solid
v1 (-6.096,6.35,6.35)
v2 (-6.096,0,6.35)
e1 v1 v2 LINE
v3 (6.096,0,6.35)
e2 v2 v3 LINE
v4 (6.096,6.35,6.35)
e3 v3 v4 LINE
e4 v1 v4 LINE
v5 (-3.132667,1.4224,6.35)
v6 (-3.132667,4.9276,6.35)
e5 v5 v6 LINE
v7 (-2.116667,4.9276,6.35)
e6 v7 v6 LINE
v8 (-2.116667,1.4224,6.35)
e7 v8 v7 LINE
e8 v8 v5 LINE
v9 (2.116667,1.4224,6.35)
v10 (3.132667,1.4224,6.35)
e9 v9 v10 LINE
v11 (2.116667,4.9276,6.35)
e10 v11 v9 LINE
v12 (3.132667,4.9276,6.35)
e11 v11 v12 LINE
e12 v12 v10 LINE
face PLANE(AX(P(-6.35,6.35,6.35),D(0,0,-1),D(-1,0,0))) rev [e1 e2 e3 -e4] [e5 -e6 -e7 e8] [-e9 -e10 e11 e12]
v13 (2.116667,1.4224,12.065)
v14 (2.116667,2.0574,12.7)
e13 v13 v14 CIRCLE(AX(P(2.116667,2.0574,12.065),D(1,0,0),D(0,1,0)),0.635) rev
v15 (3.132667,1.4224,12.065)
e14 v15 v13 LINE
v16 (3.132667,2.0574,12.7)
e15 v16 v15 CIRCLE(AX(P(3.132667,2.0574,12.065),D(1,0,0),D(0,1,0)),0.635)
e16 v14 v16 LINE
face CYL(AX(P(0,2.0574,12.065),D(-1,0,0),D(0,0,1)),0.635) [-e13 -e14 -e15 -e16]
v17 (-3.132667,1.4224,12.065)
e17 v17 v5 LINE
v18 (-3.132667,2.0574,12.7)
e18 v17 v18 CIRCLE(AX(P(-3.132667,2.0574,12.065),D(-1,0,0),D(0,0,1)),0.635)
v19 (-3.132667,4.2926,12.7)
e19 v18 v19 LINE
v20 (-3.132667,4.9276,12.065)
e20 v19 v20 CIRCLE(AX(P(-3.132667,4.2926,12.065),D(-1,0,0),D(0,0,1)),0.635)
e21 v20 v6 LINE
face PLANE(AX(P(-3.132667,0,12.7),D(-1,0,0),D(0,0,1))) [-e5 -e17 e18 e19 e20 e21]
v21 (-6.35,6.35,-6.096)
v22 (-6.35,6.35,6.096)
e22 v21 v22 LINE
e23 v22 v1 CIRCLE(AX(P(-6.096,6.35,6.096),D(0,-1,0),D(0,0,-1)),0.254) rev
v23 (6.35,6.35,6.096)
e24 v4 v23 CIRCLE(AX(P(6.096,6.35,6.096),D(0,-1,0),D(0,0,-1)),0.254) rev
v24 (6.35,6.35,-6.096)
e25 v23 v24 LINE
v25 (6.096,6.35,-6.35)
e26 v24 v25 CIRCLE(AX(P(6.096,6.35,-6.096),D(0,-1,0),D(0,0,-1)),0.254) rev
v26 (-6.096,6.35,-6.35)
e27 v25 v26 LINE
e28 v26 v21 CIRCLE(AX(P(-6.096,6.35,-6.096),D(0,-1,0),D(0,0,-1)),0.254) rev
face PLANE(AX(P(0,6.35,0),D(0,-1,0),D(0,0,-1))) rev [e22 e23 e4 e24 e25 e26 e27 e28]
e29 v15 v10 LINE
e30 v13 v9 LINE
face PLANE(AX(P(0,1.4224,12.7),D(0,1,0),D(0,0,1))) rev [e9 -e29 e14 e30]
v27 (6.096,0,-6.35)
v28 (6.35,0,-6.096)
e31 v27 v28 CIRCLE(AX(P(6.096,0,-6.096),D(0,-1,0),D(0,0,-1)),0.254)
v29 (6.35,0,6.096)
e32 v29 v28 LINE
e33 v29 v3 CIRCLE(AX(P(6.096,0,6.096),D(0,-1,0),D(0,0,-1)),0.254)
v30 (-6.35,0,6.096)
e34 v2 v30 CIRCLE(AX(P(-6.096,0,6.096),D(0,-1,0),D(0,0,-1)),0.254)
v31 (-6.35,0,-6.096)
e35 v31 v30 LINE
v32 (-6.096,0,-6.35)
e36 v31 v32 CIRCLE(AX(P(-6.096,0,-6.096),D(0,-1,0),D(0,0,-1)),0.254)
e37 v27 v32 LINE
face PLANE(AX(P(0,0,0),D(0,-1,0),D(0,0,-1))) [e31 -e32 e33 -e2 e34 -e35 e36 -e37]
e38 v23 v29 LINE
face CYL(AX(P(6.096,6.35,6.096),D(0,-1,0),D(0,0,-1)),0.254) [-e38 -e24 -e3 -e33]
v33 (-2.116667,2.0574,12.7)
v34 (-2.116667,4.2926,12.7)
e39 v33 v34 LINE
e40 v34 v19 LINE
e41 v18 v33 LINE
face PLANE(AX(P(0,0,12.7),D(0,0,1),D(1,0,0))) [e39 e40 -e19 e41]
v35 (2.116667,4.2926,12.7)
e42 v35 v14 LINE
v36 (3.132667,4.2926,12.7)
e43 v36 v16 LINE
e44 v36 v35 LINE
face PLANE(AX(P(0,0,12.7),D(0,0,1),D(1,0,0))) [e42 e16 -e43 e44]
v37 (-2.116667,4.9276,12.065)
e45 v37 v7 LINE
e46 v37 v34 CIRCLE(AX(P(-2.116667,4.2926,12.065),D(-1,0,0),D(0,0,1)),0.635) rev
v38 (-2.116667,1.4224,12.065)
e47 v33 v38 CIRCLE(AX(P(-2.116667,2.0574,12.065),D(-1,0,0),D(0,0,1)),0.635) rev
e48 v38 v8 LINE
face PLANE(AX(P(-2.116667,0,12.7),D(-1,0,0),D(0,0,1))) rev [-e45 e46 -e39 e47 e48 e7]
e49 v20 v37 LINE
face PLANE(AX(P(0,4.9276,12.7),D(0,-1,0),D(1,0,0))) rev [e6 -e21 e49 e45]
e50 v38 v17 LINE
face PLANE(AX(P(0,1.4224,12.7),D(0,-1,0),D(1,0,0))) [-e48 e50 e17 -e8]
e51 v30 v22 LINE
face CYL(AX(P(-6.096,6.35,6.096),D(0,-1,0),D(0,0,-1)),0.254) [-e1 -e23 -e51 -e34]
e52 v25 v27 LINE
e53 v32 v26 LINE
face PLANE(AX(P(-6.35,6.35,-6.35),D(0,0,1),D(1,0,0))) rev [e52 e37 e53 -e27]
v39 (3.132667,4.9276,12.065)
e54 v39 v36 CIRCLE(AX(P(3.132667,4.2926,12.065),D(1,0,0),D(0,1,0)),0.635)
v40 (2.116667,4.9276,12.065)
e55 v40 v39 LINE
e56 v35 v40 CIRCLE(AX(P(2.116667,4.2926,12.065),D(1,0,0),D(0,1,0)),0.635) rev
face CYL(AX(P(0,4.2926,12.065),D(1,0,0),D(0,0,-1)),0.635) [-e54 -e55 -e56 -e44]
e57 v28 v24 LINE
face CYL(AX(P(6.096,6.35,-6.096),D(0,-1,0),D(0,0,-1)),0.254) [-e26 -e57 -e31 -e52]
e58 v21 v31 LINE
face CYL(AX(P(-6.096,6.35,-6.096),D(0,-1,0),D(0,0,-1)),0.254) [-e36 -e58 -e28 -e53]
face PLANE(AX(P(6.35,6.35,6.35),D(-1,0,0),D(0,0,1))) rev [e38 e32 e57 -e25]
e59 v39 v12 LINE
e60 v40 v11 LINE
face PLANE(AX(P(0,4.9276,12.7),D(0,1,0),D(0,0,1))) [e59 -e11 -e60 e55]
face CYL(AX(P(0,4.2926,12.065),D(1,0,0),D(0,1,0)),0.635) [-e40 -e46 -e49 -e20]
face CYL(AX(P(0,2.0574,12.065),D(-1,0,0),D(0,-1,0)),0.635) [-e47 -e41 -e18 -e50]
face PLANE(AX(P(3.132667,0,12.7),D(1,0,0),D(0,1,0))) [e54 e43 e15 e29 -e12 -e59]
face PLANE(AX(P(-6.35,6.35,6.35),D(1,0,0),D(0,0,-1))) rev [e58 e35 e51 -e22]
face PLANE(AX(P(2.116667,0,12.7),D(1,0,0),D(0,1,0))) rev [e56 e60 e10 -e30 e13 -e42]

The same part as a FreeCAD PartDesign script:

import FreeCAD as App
import Part
import Sketcher

V = App.Vector
Q = App.Units.Quantity


def edges_at(feature, points):
    """Names of the edges that pass closest to the given points."""
    edges = feature.Shape.Edges
    near = lambda p: min(range(len(edges)), key=lambda i: edges[i].distToShape(Part.Vertex(*p))[0])
    return sorted({f"Edge{near(p) + 1}" for p in points})


def add_polygon(sketch, points):
    """Adds a closed chain of lines whose ends are joined by coincident constraints."""
    first, n = sketch.GeometryCount, len(points)
    for a, b in zip(points, points[1:] + points[:1]):
        sketch.addGeometry(Part.LineSegment(App.Vector(*a, 0), App.Vector(*b, 0)), False)
    for i in range(n):
        sketch.addConstraint(Sketcher.Constraint("Coincident", first + i, 2, first + (i + 1) % n, 1))

doc = App.newDocument("Part")
body = doc.addObject("PartDesign::Body", "Body")

# Sketch on XZ plane
sketch1 = body.newObject("Sketcher::SketchObject", "Sketch")
sketch1.AttachmentSupport = (doc.getObject("XZ_Plane"), [""])
sketch1.MapMode = "FlatFace"
add_polygon(sketch1, [(-6.35, -6.35), (-6.35, 6.35), (6.35, 6.35), (6.35, -6.35)])  # lines 0-3
sketch1.addConstraint([
    Sketcher.Constraint("Vertical", 0),
    Sketcher.Constraint("Horizontal", 1),
    Sketcher.Constraint("Vertical", 2),
    Sketcher.Constraint("Horizontal", 3),
    Sketcher.Constraint("Symmetric", 0, 2, 2, 2, -1, 1),
    Sketcher.Constraint("Equal", 3, 0),
    Sketcher.Constraint("DistanceX", 1, 1, 1, 2, Q("0.5 in")),
])
pad1 = body.newObject("PartDesign::Pad", "Pad")
pad1.Profile = sketch1
pad1.Length = Q("0.25 in")
pad1.Reversed = True

# Sketch on XY plane
sketch2 = body.newObject("Sketcher::SketchObject", "Sketch001")
sketch2.AttachmentSupport = (doc.getObject("XY_Plane"), [""])
sketch2.MapMode = "FlatFace"
sketch2.AttachmentOffset = App.Placement(V(0, 0, 0.25 * 25.4), App.Rotation())
add_polygon(sketch2, [(-3.132667, 4.9276), (-3.132667, 1.4224), (-2.116667, 1.4224), (-2.116667, 4.9276)])  # lines 0-3
add_polygon(sketch2, [(2.116667, 4.9276), (2.116667, 1.4224), (3.132667, 1.4224), (3.132667, 4.9276)])  # lines 4-7
sketch2.addConstraint([
    Sketcher.Constraint("Vertical", 0),
    Sketcher.Constraint("Horizontal", 1),
    Sketcher.Constraint("Vertical", 2),
    Sketcher.Constraint("Horizontal", 3),
    Sketcher.Constraint("Vertical", 4),
    Sketcher.Constraint("Horizontal", 5),
    Sketcher.Constraint("Vertical", 6),
    Sketcher.Constraint("Horizontal", 7),
    Sketcher.Constraint("Symmetric", 1, 2, 4, 2, -2),
    Sketcher.Constraint("Symmetric", 3, 2, 6, 2, -2),
    Sketcher.Constraint("DistanceX", 1, 1, 1, 2, Q("0.04 in")),
    Sketcher.Constraint("DistanceY", 0, 2, 0, 1, Q("0.138 in")),
    Sketcher.Constraint("DistanceY", -1, 1, 0, 2, Q("0.056 in")),
    Sketcher.Constraint("DistanceX", 0, 2, -1, 1, 3.132667),
])
pad2 = body.newObject("PartDesign::Pad", "Pad001")
pad2.Profile = sketch2
pad2.Length = Q("0.25 in")
doc.recompute()

fillet = body.newObject("PartDesign::Fillet", "Fillet")
fillet.Base = (pad2, edges_at(pad2, [
    (-2.625, 1.422, 12.7),
    (-2.625, 4.928, 12.7),
    (2.625, 4.928, 12.7),
    (2.625, 1.422, 12.7),
]))
fillet.Radius = Q("0.025 in")
doc.recompute()

fillet2 = body.newObject("PartDesign::Fillet", "Fillet001")
fillet2.Base = (fillet, edges_at(fillet, [
    (6.35, 3.175, 6.35),
    (-6.35, 3.175, 6.35),
    (-6.35, 3.175, -6.35),
    (6.35, 3.175, -6.35),
]))
fillet2.Radius = Q("0.01 in")

doc.recompute()
